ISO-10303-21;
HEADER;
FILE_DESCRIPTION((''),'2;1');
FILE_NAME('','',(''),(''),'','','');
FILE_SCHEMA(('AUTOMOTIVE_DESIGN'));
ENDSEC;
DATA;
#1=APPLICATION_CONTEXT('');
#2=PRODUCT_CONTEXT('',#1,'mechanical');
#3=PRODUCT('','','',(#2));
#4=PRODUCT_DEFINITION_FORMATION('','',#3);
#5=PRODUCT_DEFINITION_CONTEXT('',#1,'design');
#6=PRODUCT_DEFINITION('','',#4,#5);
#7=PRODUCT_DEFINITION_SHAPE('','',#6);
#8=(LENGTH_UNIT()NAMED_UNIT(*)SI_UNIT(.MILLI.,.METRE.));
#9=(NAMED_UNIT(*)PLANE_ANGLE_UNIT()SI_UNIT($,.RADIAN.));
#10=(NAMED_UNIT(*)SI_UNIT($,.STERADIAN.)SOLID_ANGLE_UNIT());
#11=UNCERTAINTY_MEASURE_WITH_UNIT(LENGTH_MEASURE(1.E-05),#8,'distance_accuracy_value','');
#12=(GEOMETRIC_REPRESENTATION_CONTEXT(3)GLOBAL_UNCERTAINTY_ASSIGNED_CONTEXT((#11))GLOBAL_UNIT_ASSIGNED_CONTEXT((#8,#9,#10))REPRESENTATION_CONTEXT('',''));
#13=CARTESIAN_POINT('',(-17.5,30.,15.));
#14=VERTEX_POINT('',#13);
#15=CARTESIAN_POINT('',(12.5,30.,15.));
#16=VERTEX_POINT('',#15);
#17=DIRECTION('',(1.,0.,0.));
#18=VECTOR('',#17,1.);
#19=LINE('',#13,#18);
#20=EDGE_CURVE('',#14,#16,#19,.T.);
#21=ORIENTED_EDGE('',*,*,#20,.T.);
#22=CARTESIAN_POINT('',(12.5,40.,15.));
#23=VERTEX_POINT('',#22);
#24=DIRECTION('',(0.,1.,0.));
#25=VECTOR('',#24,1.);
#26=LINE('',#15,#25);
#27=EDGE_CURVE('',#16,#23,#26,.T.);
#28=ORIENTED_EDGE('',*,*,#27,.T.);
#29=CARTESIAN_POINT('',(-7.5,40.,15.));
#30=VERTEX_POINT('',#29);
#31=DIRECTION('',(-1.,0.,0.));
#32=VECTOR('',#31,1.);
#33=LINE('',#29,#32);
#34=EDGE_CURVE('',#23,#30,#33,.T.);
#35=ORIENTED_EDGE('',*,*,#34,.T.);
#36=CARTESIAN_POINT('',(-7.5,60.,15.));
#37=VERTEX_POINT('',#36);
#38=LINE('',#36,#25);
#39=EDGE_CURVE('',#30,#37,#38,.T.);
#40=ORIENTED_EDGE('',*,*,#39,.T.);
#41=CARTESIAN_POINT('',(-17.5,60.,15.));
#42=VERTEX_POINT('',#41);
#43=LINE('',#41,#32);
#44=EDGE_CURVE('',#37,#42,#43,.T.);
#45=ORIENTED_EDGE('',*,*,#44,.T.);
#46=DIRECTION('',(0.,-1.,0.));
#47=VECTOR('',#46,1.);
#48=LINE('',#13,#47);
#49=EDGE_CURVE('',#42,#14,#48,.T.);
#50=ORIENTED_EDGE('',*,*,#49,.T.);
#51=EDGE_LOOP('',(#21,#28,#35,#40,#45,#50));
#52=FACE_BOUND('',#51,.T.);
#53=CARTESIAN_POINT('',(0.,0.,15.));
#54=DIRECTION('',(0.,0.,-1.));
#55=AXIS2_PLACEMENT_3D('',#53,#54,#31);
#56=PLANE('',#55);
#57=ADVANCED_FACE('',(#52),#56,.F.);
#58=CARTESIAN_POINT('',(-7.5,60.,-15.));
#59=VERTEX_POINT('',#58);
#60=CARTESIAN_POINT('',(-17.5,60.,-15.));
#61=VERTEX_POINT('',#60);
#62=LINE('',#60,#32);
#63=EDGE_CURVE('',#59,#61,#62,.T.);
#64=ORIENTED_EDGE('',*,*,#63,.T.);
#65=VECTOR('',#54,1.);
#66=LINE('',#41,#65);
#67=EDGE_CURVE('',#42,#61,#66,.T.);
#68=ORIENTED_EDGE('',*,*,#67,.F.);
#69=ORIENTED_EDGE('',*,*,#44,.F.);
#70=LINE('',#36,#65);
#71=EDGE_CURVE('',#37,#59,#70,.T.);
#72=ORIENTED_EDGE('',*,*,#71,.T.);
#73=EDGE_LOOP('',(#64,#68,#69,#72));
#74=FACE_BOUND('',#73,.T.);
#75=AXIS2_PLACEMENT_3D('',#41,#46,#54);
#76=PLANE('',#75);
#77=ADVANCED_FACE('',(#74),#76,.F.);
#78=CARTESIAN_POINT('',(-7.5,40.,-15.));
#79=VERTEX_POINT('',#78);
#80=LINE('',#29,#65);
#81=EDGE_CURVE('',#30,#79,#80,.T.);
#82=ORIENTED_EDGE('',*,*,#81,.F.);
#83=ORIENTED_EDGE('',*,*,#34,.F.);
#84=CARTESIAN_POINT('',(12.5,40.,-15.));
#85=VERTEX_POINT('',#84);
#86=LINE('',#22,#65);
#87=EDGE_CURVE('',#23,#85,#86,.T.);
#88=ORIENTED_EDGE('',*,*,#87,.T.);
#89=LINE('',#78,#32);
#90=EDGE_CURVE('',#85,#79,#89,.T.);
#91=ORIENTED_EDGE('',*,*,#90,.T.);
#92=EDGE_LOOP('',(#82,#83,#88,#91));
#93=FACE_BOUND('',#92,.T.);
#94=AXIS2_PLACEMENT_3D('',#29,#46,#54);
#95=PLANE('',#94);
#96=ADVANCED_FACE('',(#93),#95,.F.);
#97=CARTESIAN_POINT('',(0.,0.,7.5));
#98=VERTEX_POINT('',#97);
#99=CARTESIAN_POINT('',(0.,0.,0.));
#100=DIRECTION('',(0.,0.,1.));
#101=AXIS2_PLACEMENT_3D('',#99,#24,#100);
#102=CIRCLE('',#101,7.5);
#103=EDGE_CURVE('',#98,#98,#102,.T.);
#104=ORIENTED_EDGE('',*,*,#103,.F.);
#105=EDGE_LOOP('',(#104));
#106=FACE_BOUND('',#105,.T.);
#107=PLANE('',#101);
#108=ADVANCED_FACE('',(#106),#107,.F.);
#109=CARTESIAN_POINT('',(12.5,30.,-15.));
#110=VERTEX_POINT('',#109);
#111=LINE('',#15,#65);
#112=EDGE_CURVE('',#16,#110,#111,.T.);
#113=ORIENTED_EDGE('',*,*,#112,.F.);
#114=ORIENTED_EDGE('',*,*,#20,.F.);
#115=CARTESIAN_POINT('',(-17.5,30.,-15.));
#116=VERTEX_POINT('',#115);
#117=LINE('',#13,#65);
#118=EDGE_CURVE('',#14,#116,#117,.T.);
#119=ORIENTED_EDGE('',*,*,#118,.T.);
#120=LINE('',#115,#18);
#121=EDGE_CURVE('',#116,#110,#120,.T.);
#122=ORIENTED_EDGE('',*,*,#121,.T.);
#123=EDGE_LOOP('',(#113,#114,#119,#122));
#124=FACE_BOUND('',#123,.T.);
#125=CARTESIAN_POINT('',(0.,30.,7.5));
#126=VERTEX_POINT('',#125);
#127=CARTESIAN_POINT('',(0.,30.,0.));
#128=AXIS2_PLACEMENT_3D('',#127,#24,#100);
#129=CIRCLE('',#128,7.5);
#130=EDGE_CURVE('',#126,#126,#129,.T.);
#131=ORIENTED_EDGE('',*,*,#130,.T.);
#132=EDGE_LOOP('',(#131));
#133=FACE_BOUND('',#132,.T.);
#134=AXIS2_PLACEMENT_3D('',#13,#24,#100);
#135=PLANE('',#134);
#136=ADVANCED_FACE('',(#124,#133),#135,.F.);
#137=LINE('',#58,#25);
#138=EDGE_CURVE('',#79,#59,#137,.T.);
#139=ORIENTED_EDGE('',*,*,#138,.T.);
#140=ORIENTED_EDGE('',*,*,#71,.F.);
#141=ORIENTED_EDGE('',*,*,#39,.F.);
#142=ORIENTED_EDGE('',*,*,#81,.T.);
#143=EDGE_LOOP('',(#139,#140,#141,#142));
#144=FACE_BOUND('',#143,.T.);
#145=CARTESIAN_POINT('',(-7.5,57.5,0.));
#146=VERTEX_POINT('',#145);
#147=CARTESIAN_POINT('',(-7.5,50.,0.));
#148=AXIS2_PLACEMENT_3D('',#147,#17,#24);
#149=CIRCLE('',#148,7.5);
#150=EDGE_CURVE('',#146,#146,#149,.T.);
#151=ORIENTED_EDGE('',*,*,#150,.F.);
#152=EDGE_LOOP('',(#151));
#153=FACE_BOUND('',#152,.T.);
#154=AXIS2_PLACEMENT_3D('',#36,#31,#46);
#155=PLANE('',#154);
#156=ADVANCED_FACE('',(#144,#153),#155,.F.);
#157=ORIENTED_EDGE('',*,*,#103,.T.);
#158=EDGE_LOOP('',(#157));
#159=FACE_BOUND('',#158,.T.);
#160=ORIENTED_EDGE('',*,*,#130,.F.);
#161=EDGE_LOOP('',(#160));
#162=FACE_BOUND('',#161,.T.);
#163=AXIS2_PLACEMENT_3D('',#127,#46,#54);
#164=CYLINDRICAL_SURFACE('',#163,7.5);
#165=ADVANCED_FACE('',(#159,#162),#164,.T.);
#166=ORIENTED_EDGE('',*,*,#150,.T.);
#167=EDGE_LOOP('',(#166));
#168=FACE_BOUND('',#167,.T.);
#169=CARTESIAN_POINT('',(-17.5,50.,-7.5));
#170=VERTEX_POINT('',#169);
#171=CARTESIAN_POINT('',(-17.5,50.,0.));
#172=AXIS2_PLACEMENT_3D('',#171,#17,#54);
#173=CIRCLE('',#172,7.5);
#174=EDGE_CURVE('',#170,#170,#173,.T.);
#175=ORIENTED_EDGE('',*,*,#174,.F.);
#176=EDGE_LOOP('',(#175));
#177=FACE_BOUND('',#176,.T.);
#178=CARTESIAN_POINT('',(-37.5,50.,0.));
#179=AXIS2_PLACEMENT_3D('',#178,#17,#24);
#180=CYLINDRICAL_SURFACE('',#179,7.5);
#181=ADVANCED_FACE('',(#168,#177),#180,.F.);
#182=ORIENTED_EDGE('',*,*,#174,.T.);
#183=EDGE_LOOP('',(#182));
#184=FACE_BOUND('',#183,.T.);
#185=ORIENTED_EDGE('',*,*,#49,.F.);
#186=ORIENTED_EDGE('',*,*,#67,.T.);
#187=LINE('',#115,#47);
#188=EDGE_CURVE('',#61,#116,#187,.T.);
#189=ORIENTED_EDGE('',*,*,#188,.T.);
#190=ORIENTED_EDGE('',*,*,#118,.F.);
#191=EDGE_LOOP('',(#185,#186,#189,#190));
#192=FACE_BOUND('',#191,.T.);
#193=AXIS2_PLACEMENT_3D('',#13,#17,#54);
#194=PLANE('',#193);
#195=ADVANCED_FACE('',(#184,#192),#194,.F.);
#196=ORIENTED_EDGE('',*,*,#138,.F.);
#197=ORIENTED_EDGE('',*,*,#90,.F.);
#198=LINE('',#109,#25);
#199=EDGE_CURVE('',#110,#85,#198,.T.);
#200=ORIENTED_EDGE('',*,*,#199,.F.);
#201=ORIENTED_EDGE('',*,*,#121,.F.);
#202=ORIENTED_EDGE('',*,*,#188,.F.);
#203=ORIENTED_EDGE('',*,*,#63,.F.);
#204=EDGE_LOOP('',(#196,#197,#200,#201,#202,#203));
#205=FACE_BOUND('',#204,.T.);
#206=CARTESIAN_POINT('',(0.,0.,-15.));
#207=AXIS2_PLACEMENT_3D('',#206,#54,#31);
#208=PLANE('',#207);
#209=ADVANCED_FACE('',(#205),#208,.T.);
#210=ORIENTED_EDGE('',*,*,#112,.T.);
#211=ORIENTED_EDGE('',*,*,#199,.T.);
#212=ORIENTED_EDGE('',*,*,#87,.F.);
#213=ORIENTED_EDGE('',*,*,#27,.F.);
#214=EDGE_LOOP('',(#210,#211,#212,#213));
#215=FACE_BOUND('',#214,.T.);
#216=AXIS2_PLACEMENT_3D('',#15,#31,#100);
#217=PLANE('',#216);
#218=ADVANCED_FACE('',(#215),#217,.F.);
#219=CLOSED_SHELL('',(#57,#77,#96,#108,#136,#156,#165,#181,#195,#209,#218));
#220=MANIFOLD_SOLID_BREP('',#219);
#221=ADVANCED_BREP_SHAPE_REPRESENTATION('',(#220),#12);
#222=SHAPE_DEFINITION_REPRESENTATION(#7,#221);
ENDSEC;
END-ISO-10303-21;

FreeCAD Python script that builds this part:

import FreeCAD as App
import Part
import Sketcher

V = App.Vector
Q = App.Units.Quantity


def add_polygon(sketch, points):
    """Adds a closed chain of lines whose ends are joined by coincident constraints."""
    first, n = sketch.GeometryCount, len(points)
    for a, b in zip(points, points[1:] + points[:1]):
        sketch.addGeometry(Part.LineSegment(App.Vector(*a, 0), App.Vector(*b, 0)), False)
    for i in range(n):
        sketch.addConstraint(Sketcher.Constraint("Coincident", first + i, 2, first + (i + 1) % n, 1))

doc = App.newDocument("Part")
params = doc.addObject("Spreadsheet::Sheet", "Params")
for row, (alias, value) in enumerate([
    ("sketch1_diameter", "15 mm"),
    ("pad1_length", "30 mm"),
    ("sketch2_width", "10 mm"),
    ("sketch2_width2", "30 mm"),
    ("pad2_length", "30 mm"),
    ("sketch3_diameter", "15 mm"),
    ("pocket1_length", "30 mm"),
], start=1):
    params.set(f"A{row}", alias)
    params.set(f"B{row}", "=" + value)
    params.setAlias(f"B{row}", alias)

body = doc.addObject("PartDesign::Body", "Body")

# Sketch on XZ plane
sketch1 = body.newObject("Sketcher::SketchObject", "Sketch")
sketch1.AttachmentSupport = (doc.getObject("XZ_Plane"), [""])
sketch1.MapMode = "FlatFace"
sketch1.addGeometry(Part.Circle(V(0, 0, 0), V(0, 0, 1), 8), False)
sketch1.addConstraint(Sketcher.Constraint("Coincident", 0, 3, -1, 1))
sketch1.addConstraint(Sketcher.Constraint("Diameter", 0, Q("15 mm")))
sketch1.setExpression("Constraints[1]", "Params.sketch1_diameter")
pad1 = body.newObject("PartDesign::Pad", "Pad")
pad1.Profile = sketch1
pad1.setExpression("Length", "Params.pad1_length")
pad1.Reversed = True

# Sketch on XY plane
sketch2 = body.newObject("Sketcher::SketchObject", "Sketch001")
sketch2.AttachmentSupport = (doc.getObject("XY_Plane"), [""])
sketch2.MapMode = "FlatFace"
add_polygon(sketch2, [(-8, 60), (-18, 60), (-18, 30), (12, 30), (12, 40), (-8, 40)])  # lines 0-5
sketch2.addConstraint(Sketcher.Constraint("Horizontal", 0))
sketch2.addConstraint(Sketcher.Constraint("Vertical", 1))
sketch2.addConstraint(Sketcher.Constraint("Horizontal", 2))
sketch2.addConstraint(Sketcher.Constraint("Vertical", 3))
sketch2.addConstraint(Sketcher.Constraint("Horizontal", 4))
sketch2.addConstraint(Sketcher.Constraint("Vertical", 5))
sketch2.addConstraint(Sketcher.Constraint("Equal", 2, 1))
sketch2.addConstraint(Sketcher.Constraint("Equal", 0, 3))
sketch2.addConstraint(Sketcher.Constraint("DistanceX", 0, 2, 0, 1, Q("10 mm")))
sketch2.addConstraint(Sketcher.Constraint("DistanceX", 2, 1, 2, 2, Q("30 mm")))
sketch2.addConstraint(Sketcher.Constraint("DistanceY", -1, 1, 0, 2, Q("60 mm")))
sketch2.addConstraint(Sketcher.Constraint("DistanceX", 0, 2, -1, 1, Q("17.5 mm")))
sketch2.setExpression("Constraints[14]", "Params.sketch2_width")
sketch2.setExpression("Constraints[15]", "Params.sketch2_width2")
pad2 = body.newObject("PartDesign::Pad", "Pad001")
pad2.Profile = sketch2
pad2.setExpression("Length", "Params.pad2_length")
pad2.Midplane = True

# Sketch on YZ plane
sketch3 = body.newObject("Sketcher::SketchObject", "Sketch002")
sketch3.AttachmentSupport = (doc.getObject("YZ_Plane"), [""])
sketch3.MapMode = "FlatFace"
sketch3.AttachmentOffset = App.Placement(V(0, 0, -7.5), App.Rotation())
sketch3.addGeometry(Part.Circle(V(50, 0, 0), V(0, 0, 1), 8), False)
sketch3.addConstraint(Sketcher.Constraint("PointOnObject", 0, 3, -1))
sketch3.addConstraint(Sketcher.Constraint("Diameter", 0, Q("15 mm")))
sketch3.addConstraint(Sketcher.Constraint("DistanceX", -1, 1, 0, 3, Q("50 mm")))
sketch3.setExpression("Constraints[1]", "Params.sketch3_diameter")
pocket1 = body.newObject("PartDesign::Pocket", "Pocket")
pocket1.Profile = sketch3
pocket1.setExpression("Length", "Params.pocket1_length")

doc.recompute()
